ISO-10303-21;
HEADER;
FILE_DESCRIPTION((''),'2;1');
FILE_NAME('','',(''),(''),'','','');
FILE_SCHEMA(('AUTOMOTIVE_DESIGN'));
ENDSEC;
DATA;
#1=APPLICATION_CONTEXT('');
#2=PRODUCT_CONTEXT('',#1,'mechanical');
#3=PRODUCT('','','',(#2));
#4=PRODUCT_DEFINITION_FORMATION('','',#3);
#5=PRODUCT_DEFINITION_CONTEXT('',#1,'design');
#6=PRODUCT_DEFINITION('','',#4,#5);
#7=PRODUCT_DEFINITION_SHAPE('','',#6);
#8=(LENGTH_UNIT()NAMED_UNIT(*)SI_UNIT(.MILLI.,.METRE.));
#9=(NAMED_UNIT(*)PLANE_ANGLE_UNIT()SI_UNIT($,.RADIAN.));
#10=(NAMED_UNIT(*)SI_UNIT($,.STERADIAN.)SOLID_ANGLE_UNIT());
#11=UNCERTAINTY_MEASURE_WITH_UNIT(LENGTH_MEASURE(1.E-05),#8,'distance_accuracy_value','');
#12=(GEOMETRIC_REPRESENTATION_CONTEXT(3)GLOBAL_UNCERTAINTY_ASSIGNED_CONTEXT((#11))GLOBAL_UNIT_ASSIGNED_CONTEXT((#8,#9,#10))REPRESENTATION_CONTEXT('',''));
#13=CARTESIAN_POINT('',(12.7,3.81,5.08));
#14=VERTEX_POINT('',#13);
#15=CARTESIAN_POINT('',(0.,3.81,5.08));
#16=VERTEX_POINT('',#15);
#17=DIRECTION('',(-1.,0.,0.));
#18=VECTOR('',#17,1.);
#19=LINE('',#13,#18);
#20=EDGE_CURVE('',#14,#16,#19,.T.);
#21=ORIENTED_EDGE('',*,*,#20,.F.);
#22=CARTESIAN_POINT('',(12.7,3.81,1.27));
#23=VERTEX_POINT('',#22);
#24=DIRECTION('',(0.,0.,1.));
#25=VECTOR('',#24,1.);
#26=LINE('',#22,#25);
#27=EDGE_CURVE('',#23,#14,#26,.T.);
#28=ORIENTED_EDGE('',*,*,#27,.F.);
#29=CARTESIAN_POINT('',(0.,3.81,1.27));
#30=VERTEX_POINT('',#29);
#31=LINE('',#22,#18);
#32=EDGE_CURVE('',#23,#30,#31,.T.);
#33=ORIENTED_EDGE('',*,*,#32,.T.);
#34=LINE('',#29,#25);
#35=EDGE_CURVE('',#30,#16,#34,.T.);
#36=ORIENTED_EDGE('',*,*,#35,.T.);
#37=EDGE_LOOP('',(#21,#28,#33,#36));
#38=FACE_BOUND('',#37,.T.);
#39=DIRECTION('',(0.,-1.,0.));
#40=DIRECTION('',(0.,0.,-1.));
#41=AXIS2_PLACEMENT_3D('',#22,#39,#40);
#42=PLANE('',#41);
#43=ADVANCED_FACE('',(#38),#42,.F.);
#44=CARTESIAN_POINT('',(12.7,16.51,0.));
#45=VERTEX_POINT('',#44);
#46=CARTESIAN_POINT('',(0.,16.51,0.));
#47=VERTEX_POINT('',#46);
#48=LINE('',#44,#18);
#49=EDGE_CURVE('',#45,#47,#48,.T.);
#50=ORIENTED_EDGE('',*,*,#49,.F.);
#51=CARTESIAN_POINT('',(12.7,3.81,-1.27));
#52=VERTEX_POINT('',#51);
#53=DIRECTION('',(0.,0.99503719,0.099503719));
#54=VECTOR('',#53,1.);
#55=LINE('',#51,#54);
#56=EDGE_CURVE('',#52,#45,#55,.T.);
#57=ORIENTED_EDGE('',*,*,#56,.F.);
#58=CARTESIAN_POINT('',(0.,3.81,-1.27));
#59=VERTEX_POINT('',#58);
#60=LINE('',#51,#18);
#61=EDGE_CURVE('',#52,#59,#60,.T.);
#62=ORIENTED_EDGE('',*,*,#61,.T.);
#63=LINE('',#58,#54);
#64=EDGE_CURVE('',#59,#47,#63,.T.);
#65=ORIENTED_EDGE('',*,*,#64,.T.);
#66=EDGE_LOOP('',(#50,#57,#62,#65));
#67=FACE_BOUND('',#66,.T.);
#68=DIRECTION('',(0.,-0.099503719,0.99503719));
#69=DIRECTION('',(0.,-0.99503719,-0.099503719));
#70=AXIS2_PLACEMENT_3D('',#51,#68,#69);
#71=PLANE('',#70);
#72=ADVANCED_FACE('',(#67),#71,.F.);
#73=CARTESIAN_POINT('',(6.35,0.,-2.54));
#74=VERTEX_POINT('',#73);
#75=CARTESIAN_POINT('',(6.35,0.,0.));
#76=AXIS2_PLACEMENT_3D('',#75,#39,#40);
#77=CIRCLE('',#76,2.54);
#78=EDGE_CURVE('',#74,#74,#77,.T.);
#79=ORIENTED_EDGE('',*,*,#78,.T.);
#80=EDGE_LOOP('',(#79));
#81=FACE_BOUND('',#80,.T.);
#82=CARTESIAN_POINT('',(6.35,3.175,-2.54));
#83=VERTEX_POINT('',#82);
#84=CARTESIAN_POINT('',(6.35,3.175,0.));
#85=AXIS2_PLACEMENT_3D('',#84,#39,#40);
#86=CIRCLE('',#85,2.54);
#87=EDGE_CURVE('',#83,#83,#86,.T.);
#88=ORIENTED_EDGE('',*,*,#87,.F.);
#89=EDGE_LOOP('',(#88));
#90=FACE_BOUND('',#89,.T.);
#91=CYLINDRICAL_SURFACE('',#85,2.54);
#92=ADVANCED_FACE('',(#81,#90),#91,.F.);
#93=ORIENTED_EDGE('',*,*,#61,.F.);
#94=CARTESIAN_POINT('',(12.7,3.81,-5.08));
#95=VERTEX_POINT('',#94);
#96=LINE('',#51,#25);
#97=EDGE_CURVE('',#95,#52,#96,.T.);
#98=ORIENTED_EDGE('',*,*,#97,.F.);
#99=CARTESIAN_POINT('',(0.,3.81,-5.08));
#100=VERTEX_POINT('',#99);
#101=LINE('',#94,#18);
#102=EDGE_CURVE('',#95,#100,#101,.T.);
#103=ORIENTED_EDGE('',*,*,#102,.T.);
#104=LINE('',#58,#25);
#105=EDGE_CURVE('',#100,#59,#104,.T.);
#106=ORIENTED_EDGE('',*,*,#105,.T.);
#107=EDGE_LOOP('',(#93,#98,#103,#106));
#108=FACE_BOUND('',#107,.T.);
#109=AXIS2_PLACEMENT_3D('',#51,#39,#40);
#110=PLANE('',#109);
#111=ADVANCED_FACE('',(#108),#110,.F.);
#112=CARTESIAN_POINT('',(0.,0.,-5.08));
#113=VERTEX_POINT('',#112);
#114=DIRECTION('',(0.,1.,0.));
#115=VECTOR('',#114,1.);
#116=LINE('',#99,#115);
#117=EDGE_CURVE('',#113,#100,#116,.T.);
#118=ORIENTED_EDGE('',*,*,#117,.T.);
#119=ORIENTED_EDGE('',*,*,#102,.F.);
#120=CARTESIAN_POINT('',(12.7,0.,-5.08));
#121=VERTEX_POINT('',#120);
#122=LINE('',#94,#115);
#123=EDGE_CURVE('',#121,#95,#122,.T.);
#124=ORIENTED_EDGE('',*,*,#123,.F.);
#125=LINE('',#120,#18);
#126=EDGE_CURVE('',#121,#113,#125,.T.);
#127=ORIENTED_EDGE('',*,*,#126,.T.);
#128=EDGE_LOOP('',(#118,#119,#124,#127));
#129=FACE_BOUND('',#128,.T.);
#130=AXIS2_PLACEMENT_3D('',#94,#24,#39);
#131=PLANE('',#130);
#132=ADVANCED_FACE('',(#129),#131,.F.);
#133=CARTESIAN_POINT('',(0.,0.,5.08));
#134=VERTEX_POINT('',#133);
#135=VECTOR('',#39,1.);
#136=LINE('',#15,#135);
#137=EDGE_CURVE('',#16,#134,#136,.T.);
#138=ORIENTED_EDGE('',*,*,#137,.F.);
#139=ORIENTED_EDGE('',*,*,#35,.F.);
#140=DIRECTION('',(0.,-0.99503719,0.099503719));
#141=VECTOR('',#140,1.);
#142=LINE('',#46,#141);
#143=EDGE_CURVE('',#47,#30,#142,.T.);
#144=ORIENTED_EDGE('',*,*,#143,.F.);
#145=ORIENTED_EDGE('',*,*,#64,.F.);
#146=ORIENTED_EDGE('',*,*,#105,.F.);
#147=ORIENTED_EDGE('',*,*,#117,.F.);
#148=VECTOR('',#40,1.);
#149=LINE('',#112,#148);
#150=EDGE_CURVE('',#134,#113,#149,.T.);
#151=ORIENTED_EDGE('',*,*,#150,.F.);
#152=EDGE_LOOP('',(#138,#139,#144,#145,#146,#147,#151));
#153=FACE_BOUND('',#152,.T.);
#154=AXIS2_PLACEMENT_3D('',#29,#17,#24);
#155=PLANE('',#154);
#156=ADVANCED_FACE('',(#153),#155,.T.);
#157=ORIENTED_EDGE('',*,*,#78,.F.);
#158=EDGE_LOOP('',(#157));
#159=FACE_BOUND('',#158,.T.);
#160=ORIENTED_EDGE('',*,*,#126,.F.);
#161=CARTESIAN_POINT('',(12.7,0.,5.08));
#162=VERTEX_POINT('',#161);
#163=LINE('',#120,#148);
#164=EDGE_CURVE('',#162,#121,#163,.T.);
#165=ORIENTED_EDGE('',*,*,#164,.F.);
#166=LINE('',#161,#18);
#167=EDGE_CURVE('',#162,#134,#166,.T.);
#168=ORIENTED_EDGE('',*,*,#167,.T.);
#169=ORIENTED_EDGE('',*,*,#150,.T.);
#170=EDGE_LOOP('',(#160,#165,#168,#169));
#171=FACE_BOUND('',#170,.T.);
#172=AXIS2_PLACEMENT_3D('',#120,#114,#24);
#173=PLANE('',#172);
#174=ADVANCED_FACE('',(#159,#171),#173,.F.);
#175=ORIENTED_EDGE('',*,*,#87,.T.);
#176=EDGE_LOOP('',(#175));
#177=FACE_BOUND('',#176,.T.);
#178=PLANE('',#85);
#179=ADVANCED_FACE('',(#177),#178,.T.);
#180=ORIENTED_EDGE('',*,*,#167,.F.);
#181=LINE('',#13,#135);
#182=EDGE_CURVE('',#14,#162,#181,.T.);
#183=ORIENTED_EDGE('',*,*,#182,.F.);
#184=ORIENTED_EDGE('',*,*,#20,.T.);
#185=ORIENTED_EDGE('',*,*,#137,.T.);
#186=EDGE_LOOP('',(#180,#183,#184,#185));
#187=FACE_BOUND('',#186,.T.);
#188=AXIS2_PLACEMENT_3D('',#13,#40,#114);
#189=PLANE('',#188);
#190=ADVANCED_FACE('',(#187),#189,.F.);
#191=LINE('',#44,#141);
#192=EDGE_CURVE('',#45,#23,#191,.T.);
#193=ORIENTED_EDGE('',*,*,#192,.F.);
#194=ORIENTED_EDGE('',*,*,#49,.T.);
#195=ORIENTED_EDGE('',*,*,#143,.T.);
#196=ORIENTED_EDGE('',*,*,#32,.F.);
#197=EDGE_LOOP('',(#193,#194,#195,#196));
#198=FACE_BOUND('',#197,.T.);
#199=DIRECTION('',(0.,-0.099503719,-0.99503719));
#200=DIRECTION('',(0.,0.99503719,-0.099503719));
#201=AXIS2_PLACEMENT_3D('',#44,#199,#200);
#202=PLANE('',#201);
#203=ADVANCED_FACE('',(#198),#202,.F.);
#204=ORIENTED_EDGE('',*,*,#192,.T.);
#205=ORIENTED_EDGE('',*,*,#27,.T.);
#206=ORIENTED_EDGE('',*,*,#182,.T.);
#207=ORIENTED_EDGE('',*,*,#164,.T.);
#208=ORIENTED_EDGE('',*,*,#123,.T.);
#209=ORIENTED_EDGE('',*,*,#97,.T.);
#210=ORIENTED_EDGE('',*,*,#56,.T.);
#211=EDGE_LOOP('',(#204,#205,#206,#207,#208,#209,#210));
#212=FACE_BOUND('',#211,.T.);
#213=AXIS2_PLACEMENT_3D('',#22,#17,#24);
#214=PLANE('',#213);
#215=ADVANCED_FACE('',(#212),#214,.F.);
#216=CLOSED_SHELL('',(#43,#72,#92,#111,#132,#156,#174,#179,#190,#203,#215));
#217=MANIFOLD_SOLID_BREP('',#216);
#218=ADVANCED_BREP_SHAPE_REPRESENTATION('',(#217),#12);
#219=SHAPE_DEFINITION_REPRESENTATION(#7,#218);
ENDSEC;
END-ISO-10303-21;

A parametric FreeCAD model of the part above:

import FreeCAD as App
import Part
import Sketcher
Q = App.Units.Quantity

doc = App.newDocument("Part")
body = doc.addObject("PartDesign::Body", "Body")

# Sketch on YZ plane
sketch1 = body.newObject("Sketcher::SketchObject", "Sketch")
sketch1.AttachmentSupport = (doc.getObject("YZ_Plane"), [""])
sketch1.MapMode = "FlatFace"
sketch1.addGeometry([
    Part.LineSegment(App.Vector(3.8, -1.3, 0), App.Vector(16.5, 0, 0)),  # 0
    Part.LineSegment(App.Vector(16.5, 0, 0), App.Vector(3.8, 1.3, 0)),  # 1
    Part.LineSegment(App.Vector(3.8, 1.3, 0), App.Vector(3.8, 5.1, 0)),  # 2
    Part.LineSegment(App.Vector(3.8, 5.1, 0), App.Vector(0, 5.1, 0)),  # 3
    Part.LineSegment(App.Vector(0, 5.1, 0), App.Vector(0, -5.1, 0)),  # 4
    Part.LineSegment(App.Vector(0, -5.1, 0), App.Vector(3.8, -5.1, 0)),  # 5
    Part.LineSegment(App.Vector(3.8, -5.1, 0), App.Vector(3.8, -1.3, 0)),  # 6
], False)
sketch1.addConstraint([
    Sketcher.Constraint("Coincident", 0, 2, 1, 1),
    Sketcher.Constraint("Coincident", 1, 2, 2, 1),
    Sketcher.Constraint("Coincident", 2, 2, 3, 1),
    Sketcher.Constraint("Coincident", 3, 2, 4, 1),
    Sketcher.Constraint("Coincident", 4, 2, 5, 1),
    Sketcher.Constraint("Coincident", 5, 2, 6, 1),
    Sketcher.Constraint("Coincident", 6, 2, 0, 1),
    Sketcher.Constraint("Vertical", 2),
    Sketcher.Constraint("Horizontal", 3),
    Sketcher.Constraint("Vertical", 4),
    Sketcher.Constraint("Horizontal", 5),
    Sketcher.Constraint("Vertical", 6),
    Sketcher.Constraint("Symmetric", 3, 2, 4, 2, -1, 1),
    Sketcher.Constraint("Symmetric", 1, 2, 6, 2, -1),
    Sketcher.Constraint("PointOnObject", 0, 2, -1),
    Sketcher.Constraint("Equal", 5, 2),
    Sketcher.Constraint("DistanceY", 4, 2, 4, 1, Q("0.4 in")),
    Sketcher.Constraint("DistanceX", 3, 2, 3, 1, Q("0.15 in")),
    Sketcher.Constraint("DistanceX", 1, 2, 0, 2, Q("0.5 in")),
])
pad1 = body.newObject("PartDesign::Pad", "Pad")
pad1.Profile = sketch1
pad1.Length = Q("0.5 in")

# Sketch on XZ plane
sketch2 = body.newObject("Sketcher::SketchObject", "Sketch001")
sketch2.AttachmentSupport = (doc.getObject("XZ_Plane"), [""])
sketch2.MapMode = "FlatFace"
sketch2.addGeometry(Part.Circle(App.Vector(6.3, 0, 0), App.Vector(0, 0, 1), 2.5), False)
sketch2.addConstraint([
    Sketcher.Constraint("PointOnObject", 0, 3, -1),
    Sketcher.Constraint("Diameter", 0, Q("0.2 in")),
    Sketcher.Constraint("DistanceX", -1, 1, 0, 3, Q("0.25 in")),
])
pocket1 = body.newObject("PartDesign::Pocket", "Pocket")
pocket1.Profile = sketch2
pocket1.Length = Q("0.125 in")

doc.recompute()
